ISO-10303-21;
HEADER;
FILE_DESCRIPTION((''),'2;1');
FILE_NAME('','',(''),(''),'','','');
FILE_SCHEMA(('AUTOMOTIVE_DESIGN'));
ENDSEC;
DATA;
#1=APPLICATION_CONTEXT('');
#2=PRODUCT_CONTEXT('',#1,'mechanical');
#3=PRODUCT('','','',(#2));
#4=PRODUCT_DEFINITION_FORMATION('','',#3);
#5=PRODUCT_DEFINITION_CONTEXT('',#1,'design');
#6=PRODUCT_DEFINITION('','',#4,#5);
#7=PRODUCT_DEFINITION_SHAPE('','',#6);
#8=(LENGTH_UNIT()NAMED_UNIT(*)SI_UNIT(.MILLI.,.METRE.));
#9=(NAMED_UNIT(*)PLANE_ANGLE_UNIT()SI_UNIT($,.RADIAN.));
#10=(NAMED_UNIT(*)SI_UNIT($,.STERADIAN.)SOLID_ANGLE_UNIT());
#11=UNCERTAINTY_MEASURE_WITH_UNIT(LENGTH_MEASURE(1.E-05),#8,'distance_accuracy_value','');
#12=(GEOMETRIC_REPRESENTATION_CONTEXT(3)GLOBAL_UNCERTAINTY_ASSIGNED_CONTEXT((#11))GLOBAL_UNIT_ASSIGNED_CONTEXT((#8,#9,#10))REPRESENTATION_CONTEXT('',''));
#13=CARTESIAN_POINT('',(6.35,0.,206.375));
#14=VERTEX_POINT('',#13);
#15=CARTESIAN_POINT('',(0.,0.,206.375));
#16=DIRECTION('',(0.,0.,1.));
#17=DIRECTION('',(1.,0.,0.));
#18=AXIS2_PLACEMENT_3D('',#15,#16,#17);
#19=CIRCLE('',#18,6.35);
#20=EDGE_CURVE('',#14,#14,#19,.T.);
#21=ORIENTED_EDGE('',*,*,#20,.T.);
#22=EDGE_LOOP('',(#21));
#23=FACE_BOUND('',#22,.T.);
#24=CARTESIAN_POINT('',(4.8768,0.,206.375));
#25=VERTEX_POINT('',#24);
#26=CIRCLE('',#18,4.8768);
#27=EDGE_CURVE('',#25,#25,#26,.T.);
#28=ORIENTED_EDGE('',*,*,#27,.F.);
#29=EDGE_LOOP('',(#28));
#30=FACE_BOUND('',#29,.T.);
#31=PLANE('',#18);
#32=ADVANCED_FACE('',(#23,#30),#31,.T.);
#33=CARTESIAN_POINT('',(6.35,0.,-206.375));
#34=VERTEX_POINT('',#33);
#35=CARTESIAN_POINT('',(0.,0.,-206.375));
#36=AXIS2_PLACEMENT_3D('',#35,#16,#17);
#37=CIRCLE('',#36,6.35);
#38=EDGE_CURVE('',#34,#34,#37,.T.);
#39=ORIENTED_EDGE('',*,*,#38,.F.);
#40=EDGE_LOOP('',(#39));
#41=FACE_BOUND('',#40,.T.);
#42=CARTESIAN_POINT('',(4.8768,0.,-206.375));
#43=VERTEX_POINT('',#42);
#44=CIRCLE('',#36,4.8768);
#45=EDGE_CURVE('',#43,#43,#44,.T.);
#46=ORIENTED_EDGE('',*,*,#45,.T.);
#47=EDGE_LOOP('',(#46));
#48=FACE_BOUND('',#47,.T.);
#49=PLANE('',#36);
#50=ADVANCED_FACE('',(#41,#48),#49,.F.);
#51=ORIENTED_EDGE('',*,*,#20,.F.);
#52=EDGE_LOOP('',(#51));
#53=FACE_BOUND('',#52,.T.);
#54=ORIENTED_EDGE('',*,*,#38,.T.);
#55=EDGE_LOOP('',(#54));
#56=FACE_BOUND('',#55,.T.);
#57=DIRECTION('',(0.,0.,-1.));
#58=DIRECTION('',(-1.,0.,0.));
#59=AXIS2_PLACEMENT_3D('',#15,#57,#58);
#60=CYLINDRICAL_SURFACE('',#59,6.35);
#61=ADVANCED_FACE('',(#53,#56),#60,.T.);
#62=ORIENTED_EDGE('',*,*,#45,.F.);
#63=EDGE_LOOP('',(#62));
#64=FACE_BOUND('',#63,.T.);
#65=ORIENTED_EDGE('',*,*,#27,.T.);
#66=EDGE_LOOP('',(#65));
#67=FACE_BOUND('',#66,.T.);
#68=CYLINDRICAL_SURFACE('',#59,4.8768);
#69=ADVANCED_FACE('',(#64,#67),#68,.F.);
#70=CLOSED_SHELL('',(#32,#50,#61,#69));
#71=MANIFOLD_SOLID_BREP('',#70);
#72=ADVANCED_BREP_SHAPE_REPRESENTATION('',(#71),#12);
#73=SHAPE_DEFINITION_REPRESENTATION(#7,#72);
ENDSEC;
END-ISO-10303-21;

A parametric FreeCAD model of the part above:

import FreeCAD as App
import Part
import Sketcher

V = App.Vector
Q = App.Units.Quantity

doc = App.newDocument("Part")
params = doc.addObject("Spreadsheet::Sheet", "Params")
for row, (alias, value) in enumerate([
    ("sketch1_diameter", "0.5 in"),
    ("sketch1_diameter2", "0.384 in"),
    ("pad1_length", "16.25 in"),
], start=1):
    params.set(f"A{row}", alias)
    params.set(f"B{row}", "=" + value)
    params.setAlias(f"B{row}", alias)

body = doc.addObject("PartDesign::Body", "Body")

sketch1 = doc.addObject("Sketcher::SketchObject", "Sketch")
body.addObject(sketch1)
sketch1.AttachmentSupport = (doc.XY_Plane, [""])
sketch1.MapMode = "FlatFace"
sketch1.addGeometry([
    Part.Circle(V(0, 0, 0), V(0, 0, 1), 6.3),
    Part.Circle(V(0, 0, 0), V(0, 0, 1), 4.9),
], False)
sketch1.addConstraint([
    Sketcher.Constraint("Coincident", 0, 3, -1, 1),
    Sketcher.Constraint("Coincident", 1, 3, -1, 1),
    Sketcher.Constraint("Diameter", 0, Q("0.5 in")),
    Sketcher.Constraint("Diameter", 1, Q("0.384 in")),
])
sketch1.setExpression("Constraints[2]", "Params.sketch1_diameter")
sketch1.setExpression("Constraints[3]", "Params.sketch1_diameter2")
pad1 = doc.addObject("PartDesign::Pad", "Pad")
body.addObject(pad1)
pad1.Profile = sketch1
pad1.setExpression("Length", "Params.pad1_length")
pad1.Midplane = True

doc.recompute()
